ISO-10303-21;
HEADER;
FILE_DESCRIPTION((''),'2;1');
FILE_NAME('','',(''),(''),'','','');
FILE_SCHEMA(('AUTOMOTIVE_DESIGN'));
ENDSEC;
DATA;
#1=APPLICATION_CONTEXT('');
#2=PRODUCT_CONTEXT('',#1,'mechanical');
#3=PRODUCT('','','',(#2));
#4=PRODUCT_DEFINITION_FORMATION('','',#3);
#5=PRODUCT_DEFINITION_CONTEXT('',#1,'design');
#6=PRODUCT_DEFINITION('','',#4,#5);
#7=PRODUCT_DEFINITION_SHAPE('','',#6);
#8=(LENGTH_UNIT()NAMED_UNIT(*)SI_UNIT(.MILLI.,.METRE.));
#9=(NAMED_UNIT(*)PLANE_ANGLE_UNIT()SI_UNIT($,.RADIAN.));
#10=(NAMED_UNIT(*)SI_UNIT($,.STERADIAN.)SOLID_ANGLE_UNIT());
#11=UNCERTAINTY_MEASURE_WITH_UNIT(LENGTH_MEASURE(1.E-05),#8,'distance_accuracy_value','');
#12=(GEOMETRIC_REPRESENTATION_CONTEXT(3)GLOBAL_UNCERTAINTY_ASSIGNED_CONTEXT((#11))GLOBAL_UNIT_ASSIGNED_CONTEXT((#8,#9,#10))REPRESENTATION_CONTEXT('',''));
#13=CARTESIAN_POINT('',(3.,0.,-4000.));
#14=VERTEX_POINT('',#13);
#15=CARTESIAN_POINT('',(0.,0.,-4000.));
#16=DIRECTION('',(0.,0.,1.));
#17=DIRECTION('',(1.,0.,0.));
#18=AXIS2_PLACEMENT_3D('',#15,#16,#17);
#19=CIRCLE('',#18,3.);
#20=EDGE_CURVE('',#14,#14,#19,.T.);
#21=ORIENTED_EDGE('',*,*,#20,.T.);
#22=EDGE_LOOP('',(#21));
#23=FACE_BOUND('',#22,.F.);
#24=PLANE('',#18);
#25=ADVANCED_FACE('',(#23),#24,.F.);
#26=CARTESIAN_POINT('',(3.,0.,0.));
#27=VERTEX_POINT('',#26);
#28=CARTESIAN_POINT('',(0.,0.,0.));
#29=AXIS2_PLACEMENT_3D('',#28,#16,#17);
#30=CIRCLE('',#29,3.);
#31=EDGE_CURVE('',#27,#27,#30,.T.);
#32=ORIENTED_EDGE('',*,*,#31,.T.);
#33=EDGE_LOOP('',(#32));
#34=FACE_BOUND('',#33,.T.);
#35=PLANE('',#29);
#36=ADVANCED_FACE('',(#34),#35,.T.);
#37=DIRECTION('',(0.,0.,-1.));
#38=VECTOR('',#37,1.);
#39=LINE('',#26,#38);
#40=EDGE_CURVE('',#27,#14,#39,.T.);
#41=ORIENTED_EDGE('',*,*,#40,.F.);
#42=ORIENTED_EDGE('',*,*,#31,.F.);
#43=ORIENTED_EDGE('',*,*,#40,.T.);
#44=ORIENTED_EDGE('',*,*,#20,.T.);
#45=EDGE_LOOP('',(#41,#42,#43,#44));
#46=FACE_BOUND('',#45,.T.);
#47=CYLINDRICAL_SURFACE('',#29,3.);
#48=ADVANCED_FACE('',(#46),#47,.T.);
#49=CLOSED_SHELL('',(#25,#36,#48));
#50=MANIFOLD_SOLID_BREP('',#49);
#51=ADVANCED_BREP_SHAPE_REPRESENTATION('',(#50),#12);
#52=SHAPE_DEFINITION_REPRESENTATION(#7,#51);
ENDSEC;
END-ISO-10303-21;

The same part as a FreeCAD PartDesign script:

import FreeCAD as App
import Part
import Sketcher
from FreeCAD import Vector

doc = App.newDocument("Part")
body = doc.addObject("PartDesign::Body", "Body")

# Sketch on XY plane
sketch1 = body.newObject("Sketcher::SketchObject", "Sketch")
sketch1.AttachmentSupport = (doc.getObject("XY_Plane"), [""])
sketch1.MapMode = "FlatFace"
sketch1.addGeometry(Part.Circle(Vector(0, 0, 0), Vector(0, 0, 1), 3), False)
sketch1.addConstraint(Sketcher.Constraint("Coincident", 0, 3, -1, 1))
sketch1.addConstraint(Sketcher.Constraint("Diameter", 0, 6.0))
pad1 = body.newObject("PartDesign::Pad", "Pad")
pad1.Profile = sketch1
pad1.Length = 4000
pad1.Reversed = True

doc.recompute()
